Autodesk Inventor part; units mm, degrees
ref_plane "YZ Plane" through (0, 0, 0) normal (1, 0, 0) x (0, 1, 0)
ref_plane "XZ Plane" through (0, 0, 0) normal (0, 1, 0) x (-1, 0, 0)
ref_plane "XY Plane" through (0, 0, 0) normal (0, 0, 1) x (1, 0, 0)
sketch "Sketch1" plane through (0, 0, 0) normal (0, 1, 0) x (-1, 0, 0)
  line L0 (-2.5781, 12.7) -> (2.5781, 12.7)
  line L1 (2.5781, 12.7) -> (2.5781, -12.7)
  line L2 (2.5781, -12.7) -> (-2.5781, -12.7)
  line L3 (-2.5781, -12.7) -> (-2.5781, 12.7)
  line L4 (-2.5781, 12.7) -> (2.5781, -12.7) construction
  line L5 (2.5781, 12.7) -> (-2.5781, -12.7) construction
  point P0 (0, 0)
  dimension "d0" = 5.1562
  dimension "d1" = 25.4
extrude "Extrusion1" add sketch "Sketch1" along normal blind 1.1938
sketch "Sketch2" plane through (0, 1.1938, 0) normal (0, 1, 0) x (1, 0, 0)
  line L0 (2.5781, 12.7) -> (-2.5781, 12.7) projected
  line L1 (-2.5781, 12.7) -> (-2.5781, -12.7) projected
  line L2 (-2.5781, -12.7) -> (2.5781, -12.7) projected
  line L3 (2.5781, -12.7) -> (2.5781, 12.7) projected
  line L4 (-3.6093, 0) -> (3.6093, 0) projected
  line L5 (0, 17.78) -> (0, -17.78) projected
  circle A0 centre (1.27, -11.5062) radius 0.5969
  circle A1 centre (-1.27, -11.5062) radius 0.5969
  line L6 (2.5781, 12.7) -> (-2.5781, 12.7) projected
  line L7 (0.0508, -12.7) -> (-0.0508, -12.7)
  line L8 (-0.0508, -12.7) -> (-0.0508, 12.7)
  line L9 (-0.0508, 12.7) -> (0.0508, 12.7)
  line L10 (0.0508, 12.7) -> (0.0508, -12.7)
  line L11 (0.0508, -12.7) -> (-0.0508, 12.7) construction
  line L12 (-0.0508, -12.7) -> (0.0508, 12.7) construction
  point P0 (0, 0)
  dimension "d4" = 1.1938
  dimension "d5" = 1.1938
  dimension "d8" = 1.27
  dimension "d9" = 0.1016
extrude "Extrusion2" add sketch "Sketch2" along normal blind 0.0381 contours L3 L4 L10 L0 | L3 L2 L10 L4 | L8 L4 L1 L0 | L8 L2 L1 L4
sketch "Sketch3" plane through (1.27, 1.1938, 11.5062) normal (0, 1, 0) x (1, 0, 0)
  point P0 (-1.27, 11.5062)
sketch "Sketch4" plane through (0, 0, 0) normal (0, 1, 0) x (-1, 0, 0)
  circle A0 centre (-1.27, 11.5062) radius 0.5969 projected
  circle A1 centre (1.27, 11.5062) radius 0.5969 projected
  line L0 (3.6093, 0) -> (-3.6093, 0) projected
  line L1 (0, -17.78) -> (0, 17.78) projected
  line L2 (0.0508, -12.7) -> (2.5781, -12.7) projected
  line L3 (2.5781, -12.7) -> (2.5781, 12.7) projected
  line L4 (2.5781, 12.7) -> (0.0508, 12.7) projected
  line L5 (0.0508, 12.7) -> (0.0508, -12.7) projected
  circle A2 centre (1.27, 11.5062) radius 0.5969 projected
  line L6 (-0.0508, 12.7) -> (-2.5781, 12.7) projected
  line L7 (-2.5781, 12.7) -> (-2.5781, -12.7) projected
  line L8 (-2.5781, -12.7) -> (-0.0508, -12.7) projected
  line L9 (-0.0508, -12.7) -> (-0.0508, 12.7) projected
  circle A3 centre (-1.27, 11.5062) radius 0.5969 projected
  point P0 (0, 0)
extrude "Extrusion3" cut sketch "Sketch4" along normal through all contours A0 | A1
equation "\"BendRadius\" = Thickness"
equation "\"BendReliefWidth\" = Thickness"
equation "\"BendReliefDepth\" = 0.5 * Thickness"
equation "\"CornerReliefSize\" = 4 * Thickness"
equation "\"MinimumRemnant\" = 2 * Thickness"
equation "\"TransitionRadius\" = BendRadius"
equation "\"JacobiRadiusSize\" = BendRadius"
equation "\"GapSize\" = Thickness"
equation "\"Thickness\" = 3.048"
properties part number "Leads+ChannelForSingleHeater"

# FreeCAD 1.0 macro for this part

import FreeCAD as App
import Part
import Sketcher
from FreeCAD import Vector
Q = App.Units.Quantity

doc = App.newDocument("Part")
body = doc.addObject("PartDesign::Body", "Body")

# Sketch on XZ plane
sketch1 = body.newObject("Sketcher::SketchObject", "Sketch")
sketch1.AttachmentSupport = (doc.getObject("XZ_Plane"), [""])
sketch1.MapMode = "FlatFace"
sketch1.addGeometry([
    Part.LineSegment(Vector(-3, 13, 0), Vector(3, 13, 0)),
    Part.LineSegment(Vector(3, 13, 0), Vector(3, -13, 0)),
    Part.LineSegment(Vector(3, -13, 0), Vector(-3, -13, 0)),
    Part.LineSegment(Vector(-3, -13, 0), Vector(-3, 13, 0)),
], False)
sketch1.addConstraint([
    Sketcher.Constraint("Coincident", 0, 2, 1, 1),
    Sketcher.Constraint("Coincident", 1, 2, 2, 1),
    Sketcher.Constraint("Coincident", 2, 2, 3, 1),
    Sketcher.Constraint("Coincident", 3, 2, 0, 1),
    Sketcher.Constraint("Horizontal", 0),
    Sketcher.Constraint("Vertical", 1),
    Sketcher.Constraint("Horizontal", 2),
    Sketcher.Constraint("Vertical", 3),
    Sketcher.Constraint("Symmetric", 0, 2, 2, 2, -1, 1),
    Sketcher.Constraint("DistanceY", 1, 2, 1, 1, Q("1 in")),
    Sketcher.Constraint("DistanceX", 0, 1, 0, 2, Q("0.203 in")),
])
pad1 = body.newObject("PartDesign::Pad", "Pad")
pad1.Profile = sketch1
pad1.Length = Q("0.047 in")
pad1.Reversed = True

# Sketch on XZ plane
sketch2 = body.newObject("Sketcher::SketchObject", "Sketch001")
sketch2.AttachmentSupport = (doc.getObject("XZ_Plane"), [""])
sketch2.MapMode = "FlatFace"
sketch2.AttachmentOffset = App.Placement(Vector(0, 0, -0.047 * 25.4), App.Rotation())
sketch2.addGeometry([
    Part.LineSegment(Vector(2.6, -12.7, 0), Vector(0.1, -12.7, 0)),  # 0
    Part.LineSegment(Vector(0.1, -12.7, 0), Vector(0.1, 12.7, 0)),  # 1
    Part.LineSegment(Vector(0.1, 12.7, 0), Vector(2.6, 12.7, 0)),  # 2
    Part.LineSegment(Vector(2.6, 12.7, 0), Vector(2.6, -12.7, 0)),  # 3
    Part.Circle(Vector(1.3, 11.5, 0), Vector(0, 0, 1), 0.6),  # 4
    Part.LineSegment(Vector(-0.1, -12.7, 0), Vector(-2.6, -12.7, 0)),  # 5
    Part.LineSegment(Vector(-2.6, -12.7, 0), Vector(-2.6, 12.7, 0)),  # 6
    Part.LineSegment(Vector(-2.6, 12.7, 0), Vector(-0.1, 12.7, 0)),  # 7
    Part.LineSegment(Vector(-0.1, 12.7, 0), Vector(-0.1, -12.7, 0)),  # 8
    Part.Circle(Vector(-1.3, 11.5, 0), Vector(0, 0, 1), 0.6),  # 9
], False)
sketch2.addConstraint([
    Sketcher.Constraint("Coincident", 0, 2, 1, 1),
    Sketcher.Constraint("Coincident", 1, 2, 2, 1),
    Sketcher.Constraint("Coincident", 2, 2, 3, 1),
    Sketcher.Constraint("Coincident", 3, 2, 0, 1),
    Sketcher.Constraint("Coincident", 5, 2, 6, 1),
    Sketcher.Constraint("Coincident", 6, 2, 7, 1),
    Sketcher.Constraint("Coincident", 7, 2, 8, 1),
    Sketcher.Constraint("Coincident", 8, 2, 5, 1),
    Sketcher.Constraint("Horizontal", 0),
    Sketcher.Constraint("Vertical", 1),
    Sketcher.Constraint("Horizontal", 2),
    Sketcher.Constraint("Vertical", 3),
    Sketcher.Constraint("Horizontal", 5),
    Sketcher.Constraint("Vertical", 6),
    Sketcher.Constraint("Horizontal", 7),
    Sketcher.Constraint("Vertical", 8),
    Sketcher.Constraint("Equal", 4, 9),
    Sketcher.Constraint("Symmetric", 2, 2, 5, 2, -1, 1),
    Sketcher.Constraint("Symmetric", 0, 2, 7, 2, -1, 1),
    Sketcher.Constraint("Symmetric", 4, 3, 9, 3, -2),
    Sketcher.Constraint("Horizontal", 3, 2, 5, 2),
    Sketcher.Constraint("Diameter", 4, Q("0.047 in")),
    Sketcher.Constraint("DistanceY", 1, 1, 1, 2, Q("1 in")),
    Sketcher.Constraint("DistanceX", -1, 1, 4, 3, Q("0.05 in")),
    Sketcher.Constraint("DistanceY", 4, 3, 1, 2, Q("0.047 in")),
    Sketcher.Constraint("DistanceX", 7, 2, 1, 2, Q("0.004 in")),
    Sketcher.Constraint("DistanceX", 0, 2, 0, 1, Q("0.0995 in")),
])
pad2 = body.newObject("PartDesign::Pad", "Pad001")
pad2.Profile = sketch2
pad2.Length = Q("0.0015 in")
pad2.Reversed = True

# Sketch on XZ plane
sketch3 = body.newObject("Sketcher::SketchObject", "Sketch002")
sketch3.AttachmentSupport = (doc.getObject("XZ_Plane"), [""])
sketch3.MapMode = "FlatFace"
sketch3.addGeometry([
    Part.Circle(Vector(1.3, 11.5, 0), Vector(0, 0, 1), 0.6),
    Part.Circle(Vector(-1.3, 11.5, 0), Vector(0, 0, 1), 0.6),
], False)
sketch3.addConstraint([
    Sketcher.Constraint("Equal", 0, 1),
    Sketcher.Constraint("Symmetric", 0, 3, 1, 3, -2),
    Sketcher.Constraint("Diameter", 0, Q("0.047 in")),
    Sketcher.Constraint("DistanceX", 1, 3, 0, 3, Q("0.1 in")),
    Sketcher.Constraint("DistanceY", -1, 1, 0, 3, Q("0.453 in")),
])
pocket1 = body.newObject("PartDesign::Pocket", "Pocket")
pocket1.Profile = sketch3
pocket1.Type = "ThroughAll"

doc.recompute()
